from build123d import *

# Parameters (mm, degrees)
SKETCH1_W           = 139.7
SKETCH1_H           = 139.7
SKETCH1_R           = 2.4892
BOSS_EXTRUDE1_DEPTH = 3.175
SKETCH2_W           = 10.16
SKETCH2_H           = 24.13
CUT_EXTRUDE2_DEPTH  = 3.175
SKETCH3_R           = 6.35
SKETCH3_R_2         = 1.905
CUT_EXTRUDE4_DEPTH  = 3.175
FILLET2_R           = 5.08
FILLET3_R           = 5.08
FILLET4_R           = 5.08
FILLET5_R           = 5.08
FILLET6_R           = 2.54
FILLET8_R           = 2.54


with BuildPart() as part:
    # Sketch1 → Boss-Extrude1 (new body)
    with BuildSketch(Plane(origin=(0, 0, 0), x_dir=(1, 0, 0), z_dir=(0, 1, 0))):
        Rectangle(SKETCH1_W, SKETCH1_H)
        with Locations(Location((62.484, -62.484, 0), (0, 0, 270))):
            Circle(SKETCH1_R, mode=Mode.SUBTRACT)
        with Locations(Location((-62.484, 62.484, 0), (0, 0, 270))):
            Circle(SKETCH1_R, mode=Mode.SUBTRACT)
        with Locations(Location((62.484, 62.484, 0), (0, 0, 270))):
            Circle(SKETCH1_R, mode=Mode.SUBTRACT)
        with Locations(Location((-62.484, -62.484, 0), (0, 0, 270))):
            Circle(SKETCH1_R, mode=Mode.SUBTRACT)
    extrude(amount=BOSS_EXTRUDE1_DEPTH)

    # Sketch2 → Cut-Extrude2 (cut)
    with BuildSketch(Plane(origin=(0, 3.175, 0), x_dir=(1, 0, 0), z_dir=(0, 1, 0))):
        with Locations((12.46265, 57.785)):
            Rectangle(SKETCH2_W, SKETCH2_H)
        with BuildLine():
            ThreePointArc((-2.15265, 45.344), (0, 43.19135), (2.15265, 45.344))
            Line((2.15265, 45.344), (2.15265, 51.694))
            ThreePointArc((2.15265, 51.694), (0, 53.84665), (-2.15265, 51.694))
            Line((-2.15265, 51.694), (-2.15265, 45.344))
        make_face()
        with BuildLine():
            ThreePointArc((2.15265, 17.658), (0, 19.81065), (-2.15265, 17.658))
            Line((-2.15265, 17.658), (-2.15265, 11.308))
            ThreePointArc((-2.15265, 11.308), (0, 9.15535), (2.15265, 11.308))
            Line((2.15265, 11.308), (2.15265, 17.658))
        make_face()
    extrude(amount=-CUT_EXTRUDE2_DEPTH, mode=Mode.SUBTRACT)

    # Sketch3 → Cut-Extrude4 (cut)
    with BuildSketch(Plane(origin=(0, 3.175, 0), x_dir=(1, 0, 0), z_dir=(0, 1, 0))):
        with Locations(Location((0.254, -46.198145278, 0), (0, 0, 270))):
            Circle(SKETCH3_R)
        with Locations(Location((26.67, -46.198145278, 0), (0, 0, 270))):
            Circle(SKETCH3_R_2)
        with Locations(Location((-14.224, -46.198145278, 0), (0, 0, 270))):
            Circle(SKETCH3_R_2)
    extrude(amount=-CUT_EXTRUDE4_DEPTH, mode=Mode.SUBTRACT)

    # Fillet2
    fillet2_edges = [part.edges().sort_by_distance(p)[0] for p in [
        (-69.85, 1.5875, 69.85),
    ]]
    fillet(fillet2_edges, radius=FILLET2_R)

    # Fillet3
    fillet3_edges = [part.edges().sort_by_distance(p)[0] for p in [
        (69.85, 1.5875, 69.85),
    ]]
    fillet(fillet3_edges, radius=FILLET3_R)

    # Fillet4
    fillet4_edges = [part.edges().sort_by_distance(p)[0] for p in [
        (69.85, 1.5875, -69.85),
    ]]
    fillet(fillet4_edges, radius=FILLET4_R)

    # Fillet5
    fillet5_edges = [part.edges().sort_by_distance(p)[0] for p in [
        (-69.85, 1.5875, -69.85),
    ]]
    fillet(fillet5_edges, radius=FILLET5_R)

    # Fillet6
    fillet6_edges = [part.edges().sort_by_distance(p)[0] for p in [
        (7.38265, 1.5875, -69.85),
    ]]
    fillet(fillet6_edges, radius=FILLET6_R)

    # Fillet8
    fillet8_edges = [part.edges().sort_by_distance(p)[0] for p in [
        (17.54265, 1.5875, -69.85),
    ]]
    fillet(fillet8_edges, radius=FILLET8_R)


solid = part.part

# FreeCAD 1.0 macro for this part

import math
import FreeCAD as App
import Part
import Sketcher
from FreeCAD import Vector
Q = App.Units.Quantity


def edges_at(feature, points):
    """Names of the edges that pass closest to the given points."""
    edges = feature.Shape.Edges
    near = lambda p: min(range(len(edges)), key=lambda i: edges[i].distToShape(Part.Vertex(*p))[0])
    return sorted({f"Edge{near(p) + 1}" for p in points})


def add_polygon(sketch, points):
    """Adds a closed chain of lines whose ends are joined by coincident constraints."""
    first, n = sketch.GeometryCount, len(points)
    for a, b in zip(points, points[1:] + points[:1]):
        sketch.addGeometry(Part.LineSegment(App.Vector(*a, 0), App.Vector(*b, 0)), False)
    for i in range(n):
        sketch.addConstraint(Sketcher.Constraint("Coincident", first + i, 2, first + (i + 1) % n, 1))

doc = App.newDocument("Part")
params = doc.addObject("Spreadsheet::Sheet", "Params")
for row, (alias, value) in enumerate([
    ("sketch1_diameter", "0.196 in"),
    ("sketch1_width", "5.5 in"),
    ("pad1_length", "0.125 in"),
    ("sketch2_width", "0.4 in"),
    ("sketch2_height", "0.95 in"),
    ("sketch2_height2", "0.25 in"),
    ("pocket1_length", "0.125 in"),
    ("sketch3_diameter", "0.5 in"),
    ("sketch3_diameter2", "0.15 in"),
    ("pocket2_length", "0.125 in"),
    ("fillet_radius", "0.2 in"),
    ("fillet2_radius", "0.2 in"),
    ("fillet3_radius", "0.2 in"),
    ("fillet4_radius", "0.2 in"),
    ("fillet5_radius", "0.1 in"),
    ("fillet6_radius", "0.1 in"),
], start=1):
    params.set(f"A{row}", alias)
    params.set(f"B{row}", "=" + value)
    params.setAlias(f"B{row}", alias)

body = doc.addObject("PartDesign::Body", "Body")

# Sketch on XZ plane
sketch1 = body.newObject("Sketcher::SketchObject", "Sketch")
sketch1.AttachmentSupport = (doc.getObject("XZ_Plane"), [""])
sketch1.MapMode = "FlatFace"
add_polygon(sketch1, [(-69.8, -69.8), (-69.8, 69.8), (69.8, 69.8), (69.8, -69.8)])  # lines 0-3
sketch1.addGeometry(Part.Circle(Vector(-62.5, 62.5, 0), Vector(0, 0, 1), 2.5), False)  # 4
sketch1.addGeometry(Part.Circle(Vector(62.5, 62.5, 0), Vector(0, 0, 1), 2.5), False)  # 5
sketch1.addGeometry(Part.Circle(Vector(-62.5, -62.5, 0), Vector(0, 0, 1), 2.5), False)  # 6
sketch1.addGeometry(Part.Circle(Vector(62.5, -62.5, 0), Vector(0, 0, 1), 2.5), False)  # 7
sketch1.addConstraint(Sketcher.Constraint("Vertical", 0))
sketch1.addConstraint(Sketcher.Constraint("Horizontal", 1))
sketch1.addConstraint(Sketcher.Constraint("Vertical", 2))
sketch1.addConstraint(Sketcher.Constraint("Horizontal", 3))
sketch1.addConstraint(Sketcher.Constraint("Equal", 4, 5))
sketch1.addConstraint(Sketcher.Constraint("Equal", 5, 6))
sketch1.addConstraint(Sketcher.Constraint("Equal", 6, 7))
sketch1.addConstraint(Sketcher.Constraint("Symmetric", 5, 3, 6, 3, -1, 1))
sketch1.addConstraint(Sketcher.Constraint("Symmetric", 4, 3, 7, 3, -1, 1))
sketch1.addConstraint(Sketcher.Constraint("Symmetric", 0, 2, 2, 2, -1, 1))
sketch1.addConstraint(Sketcher.Constraint("Symmetric", 4, 3, 5, 3, -2))
sketch1.addConstraint(Sketcher.Constraint("Equal", 3, 0))
sketch1.addConstraint(Sketcher.Constraint("Diameter", 4, Q("0.196 in")))
sketch1.addConstraint(Sketcher.Constraint("DistanceX", 1, 1, 1, 2, Q("5.5 in")))
sketch1.addConstraint(Sketcher.Constraint("DistanceX", 4, 3, -1, 1, Q("2.46 in")))
sketch1.addConstraint(Sketcher.Constraint("DistanceY", -1, 1, 4, 3, Q("2.46 in")))
sketch1.setExpression("Constraints[16]", "Params.sketch1_diameter")
sketch1.setExpression("Constraints[17]", "Params.sketch1_width")
pad1 = body.newObject("PartDesign::Pad", "Pad")
pad1.Profile = sketch1
pad1.setExpression("Length", "Params.pad1_length")
pad1.Reversed = True

# Sketch on XZ plane
sketch2 = body.newObject("Sketcher::SketchObject", "Sketch001")
sketch2.AttachmentSupport = (doc.getObject("XZ_Plane"), [""])
sketch2.MapMode = "FlatFace"
sketch2.AttachmentOffset = App.Placement(Vector(0, 0, -0.125 * 25.4), App.Rotation())
add_polygon(sketch2, [(7.4, -69.8), (7.4, -45.7), (17.5, -45.7), (17.5, -69.8)])  # lines 0-3
sketch2.addGeometry(Part.ArcOfCircle(Part.Circle(Vector(0, -45.3, 0), Vector(0, 0, 1), 2.2), math.radians(0), math.radians(180)), False)  # 4
sketch2.addGeometry(Part.LineSegment(Vector(2.2, -45.3, 0), Vector(2.2, -51.7, 0)), False)  # 5
sketch2.addGeometry(Part.ArcOfCircle(Part.Circle(Vector(0, -51.7, 0), Vector(0, 0, 1), 2.2), math.radians(180), math.radians(360)), False)  # 6
sketch2.addGeometry(Part.LineSegment(Vector(-2.2, -51.7, 0), Vector(-2.2, -45.3, 0)), False)  # 7
sketch2.addGeometry(Part.ArcOfCircle(Part.Circle(Vector(0, -17.7, 0), Vector(0, 0, 1), 2.2), math.radians(180), math.radians(360)), False)  # 8
sketch2.addGeometry(Part.LineSegment(Vector(-2.2, -17.7, 0), Vector(-2.2, -11.3, 0)), False)  # 9
sketch2.addGeometry(Part.ArcOfCircle(Part.Circle(Vector(0, -11.3, 0), Vector(0, 0, 1), 2.2), math.radians(0), math.radians(180)), False)  # 10
sketch2.addGeometry(Part.LineSegment(Vector(2.2, -11.3, 0), Vector(2.2, -17.7, 0)), False)  # 11
sketch2.addConstraint(Sketcher.Constraint("Tangent", 4, 1, 5, 1))
sketch2.addConstraint(Sketcher.Constraint("Tangent", 5, 2, 6, 2))
sketch2.addConstraint(Sketcher.Constraint("Tangent", 6, 1, 7, 1))
sketch2.addConstraint(Sketcher.Constraint("Tangent", 7, 2, 4, 2))
sketch2.addConstraint(Sketcher.Constraint("Tangent", 8, 1, 9, 1))
sketch2.addConstraint(Sketcher.Constraint("Tangent", 9, 2, 10, 2))
sketch2.addConstraint(Sketcher.Constraint("Tangent", 10, 1, 11, 1))
sketch2.addConstraint(Sketcher.Constraint("Tangent", 11, 2, 8, 2))
sketch2.addConstraint(Sketcher.Constraint("Vertical", 0))
sketch2.addConstraint(Sketcher.Constraint("Horizontal", 1))
sketch2.addConstraint(Sketcher.Constraint("Vertical", 2))
sketch2.addConstraint(Sketcher.Constraint("Horizontal", 3))
sketch2.addConstraint(Sketcher.Constraint("Vertical", 5))
sketch2.addConstraint(Sketcher.Constraint("Vertical", 7))
sketch2.addConstraint(Sketcher.Constraint("Vertical", 9))
sketch2.addConstraint(Sketcher.Constraint("Vertical", 11))
sketch2.addConstraint(Sketcher.Constraint("Equal", 6, 8))
sketch2.addConstraint(Sketcher.Constraint("PointOnObject", 4, 3, -2))
sketch2.addConstraint(Sketcher.Constraint("PointOnObject", 8, 3, -2))
sketch2.addConstraint(Sketcher.Constraint("Equal", 7, 9))
sketch2.addConstraint(Sketcher.Constraint("DistanceX", 1, 1, 1, 2, Q("0.4 in")))
sketch2.addConstraint(Sketcher.Constraint("DistanceY", 0, 1, 0, 2, Q("0.95 in")))
sketch2.addConstraint(Sketcher.Constraint("DistanceY", 5, 2, 5, 1, Q("0.25 in")))
sketch2.addConstraint(Sketcher.Constraint("DistanceY", 0, 2, -1, 1, Q("1.8 in")))
sketch2.addConstraint(Sketcher.Constraint("DistanceY", 4, 3, 8, 3, Q("1.09 in")))
sketch2.addConstraint(Sketcher.Constraint("Radius", 4, Q("2.15265 mm")))
sketch2.addConstraint(Sketcher.Constraint("DistanceY", 4, 3, -1, 1, Q("45.344 mm")))
sketch2.addConstraint(Sketcher.Constraint("DistanceX", 4, 1, 0, 2, Q("5.23 mm")))
sketch2.setExpression("Constraints[24]", "Params.sketch2_width")
sketch2.setExpression("Constraints[25]", "Params.sketch2_height")
sketch2.setExpression("Constraints[26]", "Params.sketch2_height2")
pocket1 = body.newObject("PartDesign::Pocket", "Pocket")
pocket1.Profile = sketch2
pocket1.setExpression("Length", "Params.pocket1_length")
pocket1.Reversed = True

# Sketch on XZ plane
sketch3 = body.newObject("Sketcher::SketchObject", "Sketch002")
sketch3.AttachmentSupport = (doc.getObject("XZ_Plane"), [""])
sketch3.MapMode = "FlatFace"
sketch3.AttachmentOffset = App.Placement(Vector(0, 0, -0.125 * 25.4), App.Rotation())
sketch3.addGeometry(Part.Circle(Vector(0.3, 46.2, 0), Vector(0, 0, 1), 6.3), False)
sketch3.addGeometry(Part.Circle(Vector(26.7, 46.2, 0), Vector(0, 0, 1), 1.9), False)
sketch3.addGeometry(Part.Circle(Vector(-14.2, 46.2, 0), Vector(0, 0, 1), 1.9), False)
sketch3.addConstraint(Sketcher.Constraint("Equal", 1, 2))
sketch3.addConstraint(Sketcher.Constraint("Horizontal", 0, 3, 1, 3))
sketch3.addConstraint(Sketcher.Constraint("Horizontal", 1, 3, 2, 3))
sketch3.addConstraint(Sketcher.Constraint("Diameter", 0, Q("0.5 in")))
sketch3.addConstraint(Sketcher.Constraint("Diameter", 1, Q("0.15 in")))
sketch3.addConstraint(Sketcher.Constraint("DistanceX", -1, 1, 0, 3, Q("0.01 in")))
sketch3.addConstraint(Sketcher.Constraint("DistanceX", -1, 1, 1, 3, Q("1.05 in")))
sketch3.addConstraint(Sketcher.Constraint("DistanceX", 2, 3, -1, 1, Q("0.56 in")))
sketch3.addConstraint(Sketcher.Constraint("DistanceY", -1, 1, 0, 3, Q("46.198145 mm")))
sketch3.setExpression("Constraints[3]", "Params.sketch3_diameter")
sketch3.setExpression("Constraints[4]", "Params.sketch3_diameter2")
pocket2 = body.newObject("PartDesign::Pocket", "Pocket001")
pocket2.Profile = sketch3
pocket2.setExpression("Length", "Params.pocket2_length")
pocket2.Reversed = True
doc.recompute()

fillet = body.newObject("PartDesign::Fillet", "Fillet")
fillet.Base = (pocket2, edges_at(pocket2, [(-69.85, 1.587, 69.85)]))
fillet.setExpression("Radius", "Params.fillet_radius")
doc.recompute()

fillet2 = body.newObject("PartDesign::Fillet", "Fillet001")
fillet2.Base = (fillet, edges_at(fillet, [(69.85, 1.587, 69.85)]))
fillet2.setExpression("Radius", "Params.fillet2_radius")
doc.recompute()

fillet3 = body.newObject("PartDesign::Fillet", "Fillet002")
fillet3.Base = (fillet2, edges_at(fillet2, [(69.85, 1.587, -69.85)]))
fillet3.setExpression("Radius", "Params.fillet3_radius")
doc.recompute()

fillet4 = body.newObject("PartDesign::Fillet", "Fillet003")
fillet4.Base = (fillet3, edges_at(fillet3, [(-69.85, 1.587, -69.85)]))
fillet4.setExpression("Radius", "Params.fillet4_radius")
doc.recompute()

fillet5 = body.newObject("PartDesign::Fillet", "Fillet004")
fillet5.Base = (fillet4, edges_at(fillet4, [(7.383, 1.587, -69.85)]))
fillet5.setExpression("Radius", "Params.fillet5_radius")
doc.recompute()

fillet6 = body.newObject("PartDesign::Fillet", "Fillet005")
fillet6.Base = (fillet5, edges_at(fillet5, [(17.543, 1.587, -69.85)]))
fillet6.setExpression("Radius", "Params.fillet6_radius")

doc.recompute()
